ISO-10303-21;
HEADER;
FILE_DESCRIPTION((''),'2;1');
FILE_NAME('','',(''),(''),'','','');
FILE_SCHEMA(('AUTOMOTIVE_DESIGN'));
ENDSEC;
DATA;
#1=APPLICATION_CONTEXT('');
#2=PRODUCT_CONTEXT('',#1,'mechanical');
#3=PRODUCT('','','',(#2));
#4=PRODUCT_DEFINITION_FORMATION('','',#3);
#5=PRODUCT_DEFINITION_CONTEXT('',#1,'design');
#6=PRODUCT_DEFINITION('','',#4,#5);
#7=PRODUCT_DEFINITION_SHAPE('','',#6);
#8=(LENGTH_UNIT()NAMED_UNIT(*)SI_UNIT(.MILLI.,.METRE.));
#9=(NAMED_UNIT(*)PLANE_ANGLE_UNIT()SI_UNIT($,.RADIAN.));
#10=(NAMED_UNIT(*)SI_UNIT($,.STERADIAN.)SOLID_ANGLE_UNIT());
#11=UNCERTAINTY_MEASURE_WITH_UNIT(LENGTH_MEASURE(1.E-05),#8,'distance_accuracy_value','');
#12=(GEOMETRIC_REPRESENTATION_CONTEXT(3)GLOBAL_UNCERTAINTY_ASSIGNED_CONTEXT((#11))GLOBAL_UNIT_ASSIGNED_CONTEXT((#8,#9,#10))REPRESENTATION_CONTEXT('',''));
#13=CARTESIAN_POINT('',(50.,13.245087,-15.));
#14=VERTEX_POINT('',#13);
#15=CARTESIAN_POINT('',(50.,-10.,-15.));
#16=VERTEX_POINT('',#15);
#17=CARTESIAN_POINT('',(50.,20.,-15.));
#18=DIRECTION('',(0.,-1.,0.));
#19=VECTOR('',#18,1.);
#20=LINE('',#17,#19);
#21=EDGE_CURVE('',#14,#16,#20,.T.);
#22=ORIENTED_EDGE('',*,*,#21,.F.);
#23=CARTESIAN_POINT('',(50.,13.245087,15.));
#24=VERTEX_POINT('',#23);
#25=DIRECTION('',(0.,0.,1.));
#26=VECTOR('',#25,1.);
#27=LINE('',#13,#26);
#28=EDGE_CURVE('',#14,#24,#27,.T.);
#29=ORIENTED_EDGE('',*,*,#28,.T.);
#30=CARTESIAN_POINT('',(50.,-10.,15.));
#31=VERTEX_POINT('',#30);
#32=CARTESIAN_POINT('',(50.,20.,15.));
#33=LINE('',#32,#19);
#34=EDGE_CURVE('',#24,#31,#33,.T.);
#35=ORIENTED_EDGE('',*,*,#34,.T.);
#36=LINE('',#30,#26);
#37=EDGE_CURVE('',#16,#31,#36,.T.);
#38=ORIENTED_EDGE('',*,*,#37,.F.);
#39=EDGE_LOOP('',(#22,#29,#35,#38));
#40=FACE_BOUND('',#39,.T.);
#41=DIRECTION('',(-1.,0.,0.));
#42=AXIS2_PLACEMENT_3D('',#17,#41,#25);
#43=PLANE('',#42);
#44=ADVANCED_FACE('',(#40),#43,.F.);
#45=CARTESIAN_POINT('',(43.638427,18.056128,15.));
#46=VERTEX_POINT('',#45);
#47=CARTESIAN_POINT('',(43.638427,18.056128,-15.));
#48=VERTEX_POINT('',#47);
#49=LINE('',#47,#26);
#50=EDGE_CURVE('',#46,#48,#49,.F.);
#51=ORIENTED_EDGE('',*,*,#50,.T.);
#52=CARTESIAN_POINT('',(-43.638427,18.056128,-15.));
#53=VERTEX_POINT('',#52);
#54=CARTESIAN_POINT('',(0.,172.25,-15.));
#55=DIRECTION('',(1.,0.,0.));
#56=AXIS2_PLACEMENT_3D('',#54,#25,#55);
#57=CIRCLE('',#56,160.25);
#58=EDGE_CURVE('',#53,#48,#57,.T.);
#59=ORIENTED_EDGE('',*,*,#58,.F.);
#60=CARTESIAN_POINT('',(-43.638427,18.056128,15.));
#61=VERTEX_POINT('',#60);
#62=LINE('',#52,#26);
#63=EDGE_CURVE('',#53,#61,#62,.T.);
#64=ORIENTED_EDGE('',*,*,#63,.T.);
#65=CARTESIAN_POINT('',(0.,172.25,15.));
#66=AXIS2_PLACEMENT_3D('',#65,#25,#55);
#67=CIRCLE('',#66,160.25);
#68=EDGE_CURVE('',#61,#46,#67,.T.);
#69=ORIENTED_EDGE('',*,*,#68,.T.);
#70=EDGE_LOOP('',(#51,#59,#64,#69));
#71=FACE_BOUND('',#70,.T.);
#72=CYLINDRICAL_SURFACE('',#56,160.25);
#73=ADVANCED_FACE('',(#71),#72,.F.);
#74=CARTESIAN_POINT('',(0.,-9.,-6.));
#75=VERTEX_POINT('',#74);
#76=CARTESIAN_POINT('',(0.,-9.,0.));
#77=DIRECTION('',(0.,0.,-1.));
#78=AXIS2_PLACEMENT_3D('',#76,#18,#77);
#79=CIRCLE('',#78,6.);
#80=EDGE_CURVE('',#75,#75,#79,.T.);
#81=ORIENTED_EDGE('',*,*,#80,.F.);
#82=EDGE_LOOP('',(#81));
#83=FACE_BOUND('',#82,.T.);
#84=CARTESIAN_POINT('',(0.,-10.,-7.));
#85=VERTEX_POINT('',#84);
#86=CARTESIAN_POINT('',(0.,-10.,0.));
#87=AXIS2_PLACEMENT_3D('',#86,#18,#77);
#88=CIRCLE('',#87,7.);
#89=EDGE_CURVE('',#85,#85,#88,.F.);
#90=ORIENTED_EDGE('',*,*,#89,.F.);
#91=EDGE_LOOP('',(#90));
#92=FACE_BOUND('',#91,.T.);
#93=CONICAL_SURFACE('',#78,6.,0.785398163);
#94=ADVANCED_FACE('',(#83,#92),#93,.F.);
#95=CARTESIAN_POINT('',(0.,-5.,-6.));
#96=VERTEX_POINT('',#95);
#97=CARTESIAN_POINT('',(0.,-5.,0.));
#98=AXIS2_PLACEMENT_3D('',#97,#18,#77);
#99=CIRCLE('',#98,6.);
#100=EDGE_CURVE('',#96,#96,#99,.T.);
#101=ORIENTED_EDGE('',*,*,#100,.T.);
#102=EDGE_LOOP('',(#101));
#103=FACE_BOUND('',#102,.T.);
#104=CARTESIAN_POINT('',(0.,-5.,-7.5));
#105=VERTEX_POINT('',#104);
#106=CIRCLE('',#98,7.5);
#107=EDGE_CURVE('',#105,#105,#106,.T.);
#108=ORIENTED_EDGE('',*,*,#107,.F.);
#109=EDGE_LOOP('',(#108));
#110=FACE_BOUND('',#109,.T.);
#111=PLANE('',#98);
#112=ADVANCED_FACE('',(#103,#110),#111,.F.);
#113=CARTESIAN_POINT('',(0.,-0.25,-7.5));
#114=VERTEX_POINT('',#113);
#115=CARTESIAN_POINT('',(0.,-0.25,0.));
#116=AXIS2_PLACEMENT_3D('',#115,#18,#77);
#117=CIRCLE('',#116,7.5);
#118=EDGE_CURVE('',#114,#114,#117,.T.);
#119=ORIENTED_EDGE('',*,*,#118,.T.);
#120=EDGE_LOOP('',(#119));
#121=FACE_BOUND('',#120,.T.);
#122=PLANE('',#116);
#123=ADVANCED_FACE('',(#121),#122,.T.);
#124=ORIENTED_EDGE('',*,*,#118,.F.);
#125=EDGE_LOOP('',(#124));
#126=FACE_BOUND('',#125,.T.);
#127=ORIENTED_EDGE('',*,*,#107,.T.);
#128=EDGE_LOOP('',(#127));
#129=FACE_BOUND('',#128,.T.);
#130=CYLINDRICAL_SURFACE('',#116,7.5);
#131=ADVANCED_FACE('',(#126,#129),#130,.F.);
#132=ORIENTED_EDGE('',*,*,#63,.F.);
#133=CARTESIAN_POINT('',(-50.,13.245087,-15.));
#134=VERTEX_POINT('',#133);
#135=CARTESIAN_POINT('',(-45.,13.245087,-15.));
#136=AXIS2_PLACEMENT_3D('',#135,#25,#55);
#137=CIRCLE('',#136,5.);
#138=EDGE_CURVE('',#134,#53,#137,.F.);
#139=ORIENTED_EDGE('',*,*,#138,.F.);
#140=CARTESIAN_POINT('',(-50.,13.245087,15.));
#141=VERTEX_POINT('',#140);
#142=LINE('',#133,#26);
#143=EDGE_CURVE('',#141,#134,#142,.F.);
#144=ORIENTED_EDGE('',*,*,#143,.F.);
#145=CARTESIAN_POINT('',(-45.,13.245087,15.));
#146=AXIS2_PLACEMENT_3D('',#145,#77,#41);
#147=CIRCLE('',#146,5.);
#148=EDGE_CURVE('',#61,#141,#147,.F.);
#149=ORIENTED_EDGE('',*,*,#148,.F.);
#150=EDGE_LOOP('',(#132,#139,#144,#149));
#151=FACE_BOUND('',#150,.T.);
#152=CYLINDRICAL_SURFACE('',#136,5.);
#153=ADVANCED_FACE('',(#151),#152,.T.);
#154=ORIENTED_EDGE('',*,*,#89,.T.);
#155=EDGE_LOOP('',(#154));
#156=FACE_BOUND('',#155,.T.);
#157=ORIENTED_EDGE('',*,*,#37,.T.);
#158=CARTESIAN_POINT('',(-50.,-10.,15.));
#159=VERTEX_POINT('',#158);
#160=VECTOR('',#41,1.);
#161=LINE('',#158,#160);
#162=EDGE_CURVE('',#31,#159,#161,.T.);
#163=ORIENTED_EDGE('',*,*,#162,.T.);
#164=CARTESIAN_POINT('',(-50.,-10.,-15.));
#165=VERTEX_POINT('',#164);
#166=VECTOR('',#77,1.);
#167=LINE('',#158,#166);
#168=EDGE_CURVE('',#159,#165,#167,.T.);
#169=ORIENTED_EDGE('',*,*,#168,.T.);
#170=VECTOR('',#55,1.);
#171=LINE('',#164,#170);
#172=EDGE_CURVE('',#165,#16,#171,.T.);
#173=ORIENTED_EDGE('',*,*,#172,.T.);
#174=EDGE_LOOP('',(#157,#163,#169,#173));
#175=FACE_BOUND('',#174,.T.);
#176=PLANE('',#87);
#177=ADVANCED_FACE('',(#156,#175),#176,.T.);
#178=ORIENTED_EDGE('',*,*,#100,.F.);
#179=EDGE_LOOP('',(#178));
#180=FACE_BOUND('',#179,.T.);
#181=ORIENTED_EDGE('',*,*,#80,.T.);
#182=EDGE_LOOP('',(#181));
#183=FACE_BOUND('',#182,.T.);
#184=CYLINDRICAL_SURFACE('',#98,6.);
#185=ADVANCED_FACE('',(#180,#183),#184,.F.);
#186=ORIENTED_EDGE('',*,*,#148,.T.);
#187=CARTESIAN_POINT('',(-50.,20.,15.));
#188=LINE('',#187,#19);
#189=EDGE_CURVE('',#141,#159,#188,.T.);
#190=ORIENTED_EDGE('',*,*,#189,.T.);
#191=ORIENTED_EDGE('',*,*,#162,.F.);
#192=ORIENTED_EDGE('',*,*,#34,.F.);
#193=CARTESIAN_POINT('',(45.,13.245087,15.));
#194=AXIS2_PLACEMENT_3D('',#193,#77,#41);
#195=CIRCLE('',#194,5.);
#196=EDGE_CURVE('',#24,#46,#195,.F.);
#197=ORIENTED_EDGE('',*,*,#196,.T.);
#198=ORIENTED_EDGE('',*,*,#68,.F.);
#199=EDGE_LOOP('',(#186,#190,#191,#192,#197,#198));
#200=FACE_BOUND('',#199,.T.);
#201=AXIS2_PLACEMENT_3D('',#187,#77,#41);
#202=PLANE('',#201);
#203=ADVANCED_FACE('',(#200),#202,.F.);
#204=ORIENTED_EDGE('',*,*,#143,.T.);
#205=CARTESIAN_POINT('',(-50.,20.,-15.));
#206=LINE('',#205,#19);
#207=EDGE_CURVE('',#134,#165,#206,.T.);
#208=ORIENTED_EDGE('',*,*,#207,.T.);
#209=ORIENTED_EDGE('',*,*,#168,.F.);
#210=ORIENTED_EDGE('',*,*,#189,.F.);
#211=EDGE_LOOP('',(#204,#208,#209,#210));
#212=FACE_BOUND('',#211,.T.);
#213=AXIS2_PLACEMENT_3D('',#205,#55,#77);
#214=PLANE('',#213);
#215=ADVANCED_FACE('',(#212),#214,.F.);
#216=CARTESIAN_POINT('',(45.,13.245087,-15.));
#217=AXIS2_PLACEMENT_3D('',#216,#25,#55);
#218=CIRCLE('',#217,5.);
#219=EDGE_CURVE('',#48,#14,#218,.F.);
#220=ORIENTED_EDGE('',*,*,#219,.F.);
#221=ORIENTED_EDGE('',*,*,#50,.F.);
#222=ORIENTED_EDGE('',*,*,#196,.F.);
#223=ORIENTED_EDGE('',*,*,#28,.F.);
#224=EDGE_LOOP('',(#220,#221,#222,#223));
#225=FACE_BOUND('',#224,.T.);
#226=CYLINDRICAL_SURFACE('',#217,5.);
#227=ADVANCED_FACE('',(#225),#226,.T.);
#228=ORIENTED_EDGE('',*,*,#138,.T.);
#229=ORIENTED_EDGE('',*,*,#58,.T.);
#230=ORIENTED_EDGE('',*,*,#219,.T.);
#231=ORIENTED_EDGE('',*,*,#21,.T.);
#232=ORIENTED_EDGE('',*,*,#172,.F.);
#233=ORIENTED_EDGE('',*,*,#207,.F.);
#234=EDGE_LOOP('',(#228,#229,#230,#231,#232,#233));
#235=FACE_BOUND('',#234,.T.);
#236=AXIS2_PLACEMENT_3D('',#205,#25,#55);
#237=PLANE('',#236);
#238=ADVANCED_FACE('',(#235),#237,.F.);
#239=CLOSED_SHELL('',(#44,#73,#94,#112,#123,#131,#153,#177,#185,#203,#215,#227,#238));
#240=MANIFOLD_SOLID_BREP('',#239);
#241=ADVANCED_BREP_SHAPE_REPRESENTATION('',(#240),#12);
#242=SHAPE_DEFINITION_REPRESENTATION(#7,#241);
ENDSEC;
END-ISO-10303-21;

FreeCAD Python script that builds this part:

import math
import FreeCAD as App
import Part
import Sketcher
from FreeCAD import Vector
Q = App.Units.Quantity


def edges_at(feature, points):
    """Names of the edges that pass closest to the given points."""
    edges = feature.Shape.Edges
    near = lambda p: min(range(len(edges)), key=lambda i: edges[i].distToShape(Part.Vertex(*p))[0])
    return sorted({f"Edge{near(p) + 1}" for p in points})

doc = App.newDocument("Part")
body = doc.addObject("PartDesign::Body", "Body")

# Sketch on XZ plane
sketch1 = doc.addObject("Sketcher::SketchObject", "Sketch")
body.addObject(sketch1)
sketch1.AttachmentSupport = (doc.XZ_Plane, [""])
sketch1.MapMode = "FlatFace"
sketch1.addGeometry([
    Part.LineSegment(Vector(-50, -15, 0), Vector(-50, 15, 0)),
    Part.LineSegment(Vector(-50, 15, 0), Vector(50, 15, 0)),
    Part.LineSegment(Vector(50, 15, 0), Vector(50, -15, 0)),
    Part.LineSegment(Vector(50, -15, 0), Vector(-50, -15, 0)),
], False)
sketch1.addConstraint([
    Sketcher.Constraint("Coincident", 0, 2, 1, 1),
    Sketcher.Constraint("Coincident", 1, 2, 2, 1),
    Sketcher.Constraint("Coincident", 2, 2, 3, 1),
    Sketcher.Constraint("Coincident", 3, 2, 0, 1),
    Sketcher.Constraint("Vertical", 0),
    Sketcher.Constraint("Horizontal", 1),
    Sketcher.Constraint("Vertical", 2),
    Sketcher.Constraint("Horizontal", 3),
    Sketcher.Constraint("Symmetric", 0, 2, 2, 2, -1, 1),
    Sketcher.Constraint("DistanceX", 1, 1, 1, 2, Q("100 mm")),
    Sketcher.Constraint("DistanceY", 0, 1, 0, 2, Q("30 mm")),
])
pad1 = doc.addObject("PartDesign::Pad", "Pad")
body.addObject(pad1)
pad1.Profile = sketch1
pad1.Length = 20
pad1.Reversed = True

# Sketch on XY plane
sketch2 = doc.addObject("Sketcher::SketchObject", "Sketch001")
body.addObject(sketch2)
sketch2.AttachmentSupport = (doc.XY_Plane, [""])
sketch2.MapMode = "FlatFace"
sketch2.AttachmentOffset = App.Placement(Vector(0, 0, 15), App.Rotation())
sketch2.addGeometry([
    Part.LineSegment(Vector(50, 20, 0), Vector(-50, 20, 0)),
    Part.ArcOfCircle(Part.Circle(Vector(0, 172, 0), Vector(0, 0, 1), 160), math.radians(-108), math.radians(-72)),
], False)
sketch2.addConstraint([
    Sketcher.Constraint("Coincident", 0, 1, 1, 2),
    Sketcher.Constraint("Coincident", 1, 1, 0, 2),
    Sketcher.Constraint("Horizontal", 0),
    Sketcher.Constraint("PointOnObject", 1, 3, -2),
    Sketcher.Constraint("DistanceX", 0, 2, 0, 1, Q("100 mm")),
    Sketcher.Constraint("Radius", 1, Q("160.25 mm")),
    Sketcher.Constraint("DistanceY", -1, 1, 0, 1, Q("20 mm")),
])
pocket1 = doc.addObject("PartDesign::Pocket", "Pocket")
body.addObject(pocket1)
pocket1.Profile = sketch2
pocket1.Type = "ThroughAll"
doc.recompute()

fillet = doc.addObject("PartDesign::Fillet", "Fillet")
body.addObject(fillet)
fillet.Base = (pocket1, edges_at(pocket1, [(-50, 20, 0), (50, 20, 0)]))
fillet.Radius = 5

# Sketch on XZ plane
sketch3 = doc.addObject("Sketcher::SketchObject", "Sketch002")
body.addObject(sketch3)
sketch3.AttachmentSupport = (doc.XZ_Plane, [""])
sketch3.MapMode = "FlatFace"
sketch3.addGeometry([
    Part.LineSegment(Vector(-50, 15, 0), Vector(-50, -15, 0)),
    Part.LineSegment(Vector(-50, -15, 0), Vector(50, -15, 0)),
    Part.LineSegment(Vector(50, -15, 0), Vector(50, 15, 0)),
    Part.LineSegment(Vector(50, 15, 0), Vector(-50, 15, 0)),
], False)
sketch3.addConstraint([
    Sketcher.Constraint("Coincident", 0, 2, 1, 1),
    Sketcher.Constraint("Coincident", 1, 2, 2, 1),
    Sketcher.Constraint("Coincident", 2, 2, 3, 1),
    Sketcher.Constraint("Coincident", 3, 2, 0, 1),
    Sketcher.Constraint("Vertical", 0),
    Sketcher.Constraint("Horizontal", 1),
    Sketcher.Constraint("Vertical", 2),
    Sketcher.Constraint("Horizontal", 3),
    Sketcher.Constraint("Symmetric", 0, 2, 2, 2, -1, 1),
    Sketcher.Constraint("DistanceX", 1, 1, 1, 2, Q("100 mm")),
    Sketcher.Constraint("DistanceY", 0, 2, 0, 1, Q("30 mm")),
])
pad2 = doc.addObject("PartDesign::Pad", "Pad001")
body.addObject(pad2)
pad2.Profile = sketch3
pad2.Length = 10

# Sketch on XZ plane
sketch4 = doc.addObject("Sketcher::SketchObject", "Sketch003")
body.addObject(sketch4)
sketch4.AttachmentSupport = (doc.XZ_Plane, [""])
sketch4.MapMode = "FlatFace"
sketch4.AttachmentOffset = App.Placement(Vector(0, 0, 10), App.Rotation())
sketch4.addGeometry(Part.Circle(Vector(0, 0, 0), Vector(0, 0, 1), 6), False)
sketch4.addConstraint([
    Sketcher.Constraint("Coincident", 0, 3, -1, 1),
    Sketcher.Constraint("Diameter", 0, Q("12 mm")),
])
pocket2 = doc.addObject("PartDesign::Pocket", "Pocket001")
body.addObject(pocket2)
pocket2.Profile = sketch4
pocket2.Length = 5

# Sketch on XZ plane
sketch5 = doc.addObject("Sketcher::SketchObject", "Sketch004")
body.addObject(sketch5)
sketch5.AttachmentSupport = (doc.XZ_Plane, [""])
sketch5.MapMode = "FlatFace"
sketch5.AttachmentOffset = App.Placement(Vector(0, 0, 5), App.Rotation())
sketch5.addGeometry(Part.Circle(Vector(0, 0, 0), Vector(0, 0, 1), 8), False)
sketch5.addConstraint([
    Sketcher.Constraint("Coincident", 0, 3, -1, 1),
    Sketcher.Constraint("Diameter", 0, Q("15 mm")),
])
pocket3 = doc.addObject("PartDesign::Pocket", "Pocket002")
body.addObject(pocket3)
pocket3.Profile = sketch5
pocket3.Length = 4.75
doc.recompute()

chamfer = doc.addObject("PartDesign::Chamfer", "Chamfer")
body.addObject(chamfer)
chamfer.Base = (pocket3, edges_at(pocket3, [(0, -10, 6)]))
chamfer.Size = 1

doc.recompute()
